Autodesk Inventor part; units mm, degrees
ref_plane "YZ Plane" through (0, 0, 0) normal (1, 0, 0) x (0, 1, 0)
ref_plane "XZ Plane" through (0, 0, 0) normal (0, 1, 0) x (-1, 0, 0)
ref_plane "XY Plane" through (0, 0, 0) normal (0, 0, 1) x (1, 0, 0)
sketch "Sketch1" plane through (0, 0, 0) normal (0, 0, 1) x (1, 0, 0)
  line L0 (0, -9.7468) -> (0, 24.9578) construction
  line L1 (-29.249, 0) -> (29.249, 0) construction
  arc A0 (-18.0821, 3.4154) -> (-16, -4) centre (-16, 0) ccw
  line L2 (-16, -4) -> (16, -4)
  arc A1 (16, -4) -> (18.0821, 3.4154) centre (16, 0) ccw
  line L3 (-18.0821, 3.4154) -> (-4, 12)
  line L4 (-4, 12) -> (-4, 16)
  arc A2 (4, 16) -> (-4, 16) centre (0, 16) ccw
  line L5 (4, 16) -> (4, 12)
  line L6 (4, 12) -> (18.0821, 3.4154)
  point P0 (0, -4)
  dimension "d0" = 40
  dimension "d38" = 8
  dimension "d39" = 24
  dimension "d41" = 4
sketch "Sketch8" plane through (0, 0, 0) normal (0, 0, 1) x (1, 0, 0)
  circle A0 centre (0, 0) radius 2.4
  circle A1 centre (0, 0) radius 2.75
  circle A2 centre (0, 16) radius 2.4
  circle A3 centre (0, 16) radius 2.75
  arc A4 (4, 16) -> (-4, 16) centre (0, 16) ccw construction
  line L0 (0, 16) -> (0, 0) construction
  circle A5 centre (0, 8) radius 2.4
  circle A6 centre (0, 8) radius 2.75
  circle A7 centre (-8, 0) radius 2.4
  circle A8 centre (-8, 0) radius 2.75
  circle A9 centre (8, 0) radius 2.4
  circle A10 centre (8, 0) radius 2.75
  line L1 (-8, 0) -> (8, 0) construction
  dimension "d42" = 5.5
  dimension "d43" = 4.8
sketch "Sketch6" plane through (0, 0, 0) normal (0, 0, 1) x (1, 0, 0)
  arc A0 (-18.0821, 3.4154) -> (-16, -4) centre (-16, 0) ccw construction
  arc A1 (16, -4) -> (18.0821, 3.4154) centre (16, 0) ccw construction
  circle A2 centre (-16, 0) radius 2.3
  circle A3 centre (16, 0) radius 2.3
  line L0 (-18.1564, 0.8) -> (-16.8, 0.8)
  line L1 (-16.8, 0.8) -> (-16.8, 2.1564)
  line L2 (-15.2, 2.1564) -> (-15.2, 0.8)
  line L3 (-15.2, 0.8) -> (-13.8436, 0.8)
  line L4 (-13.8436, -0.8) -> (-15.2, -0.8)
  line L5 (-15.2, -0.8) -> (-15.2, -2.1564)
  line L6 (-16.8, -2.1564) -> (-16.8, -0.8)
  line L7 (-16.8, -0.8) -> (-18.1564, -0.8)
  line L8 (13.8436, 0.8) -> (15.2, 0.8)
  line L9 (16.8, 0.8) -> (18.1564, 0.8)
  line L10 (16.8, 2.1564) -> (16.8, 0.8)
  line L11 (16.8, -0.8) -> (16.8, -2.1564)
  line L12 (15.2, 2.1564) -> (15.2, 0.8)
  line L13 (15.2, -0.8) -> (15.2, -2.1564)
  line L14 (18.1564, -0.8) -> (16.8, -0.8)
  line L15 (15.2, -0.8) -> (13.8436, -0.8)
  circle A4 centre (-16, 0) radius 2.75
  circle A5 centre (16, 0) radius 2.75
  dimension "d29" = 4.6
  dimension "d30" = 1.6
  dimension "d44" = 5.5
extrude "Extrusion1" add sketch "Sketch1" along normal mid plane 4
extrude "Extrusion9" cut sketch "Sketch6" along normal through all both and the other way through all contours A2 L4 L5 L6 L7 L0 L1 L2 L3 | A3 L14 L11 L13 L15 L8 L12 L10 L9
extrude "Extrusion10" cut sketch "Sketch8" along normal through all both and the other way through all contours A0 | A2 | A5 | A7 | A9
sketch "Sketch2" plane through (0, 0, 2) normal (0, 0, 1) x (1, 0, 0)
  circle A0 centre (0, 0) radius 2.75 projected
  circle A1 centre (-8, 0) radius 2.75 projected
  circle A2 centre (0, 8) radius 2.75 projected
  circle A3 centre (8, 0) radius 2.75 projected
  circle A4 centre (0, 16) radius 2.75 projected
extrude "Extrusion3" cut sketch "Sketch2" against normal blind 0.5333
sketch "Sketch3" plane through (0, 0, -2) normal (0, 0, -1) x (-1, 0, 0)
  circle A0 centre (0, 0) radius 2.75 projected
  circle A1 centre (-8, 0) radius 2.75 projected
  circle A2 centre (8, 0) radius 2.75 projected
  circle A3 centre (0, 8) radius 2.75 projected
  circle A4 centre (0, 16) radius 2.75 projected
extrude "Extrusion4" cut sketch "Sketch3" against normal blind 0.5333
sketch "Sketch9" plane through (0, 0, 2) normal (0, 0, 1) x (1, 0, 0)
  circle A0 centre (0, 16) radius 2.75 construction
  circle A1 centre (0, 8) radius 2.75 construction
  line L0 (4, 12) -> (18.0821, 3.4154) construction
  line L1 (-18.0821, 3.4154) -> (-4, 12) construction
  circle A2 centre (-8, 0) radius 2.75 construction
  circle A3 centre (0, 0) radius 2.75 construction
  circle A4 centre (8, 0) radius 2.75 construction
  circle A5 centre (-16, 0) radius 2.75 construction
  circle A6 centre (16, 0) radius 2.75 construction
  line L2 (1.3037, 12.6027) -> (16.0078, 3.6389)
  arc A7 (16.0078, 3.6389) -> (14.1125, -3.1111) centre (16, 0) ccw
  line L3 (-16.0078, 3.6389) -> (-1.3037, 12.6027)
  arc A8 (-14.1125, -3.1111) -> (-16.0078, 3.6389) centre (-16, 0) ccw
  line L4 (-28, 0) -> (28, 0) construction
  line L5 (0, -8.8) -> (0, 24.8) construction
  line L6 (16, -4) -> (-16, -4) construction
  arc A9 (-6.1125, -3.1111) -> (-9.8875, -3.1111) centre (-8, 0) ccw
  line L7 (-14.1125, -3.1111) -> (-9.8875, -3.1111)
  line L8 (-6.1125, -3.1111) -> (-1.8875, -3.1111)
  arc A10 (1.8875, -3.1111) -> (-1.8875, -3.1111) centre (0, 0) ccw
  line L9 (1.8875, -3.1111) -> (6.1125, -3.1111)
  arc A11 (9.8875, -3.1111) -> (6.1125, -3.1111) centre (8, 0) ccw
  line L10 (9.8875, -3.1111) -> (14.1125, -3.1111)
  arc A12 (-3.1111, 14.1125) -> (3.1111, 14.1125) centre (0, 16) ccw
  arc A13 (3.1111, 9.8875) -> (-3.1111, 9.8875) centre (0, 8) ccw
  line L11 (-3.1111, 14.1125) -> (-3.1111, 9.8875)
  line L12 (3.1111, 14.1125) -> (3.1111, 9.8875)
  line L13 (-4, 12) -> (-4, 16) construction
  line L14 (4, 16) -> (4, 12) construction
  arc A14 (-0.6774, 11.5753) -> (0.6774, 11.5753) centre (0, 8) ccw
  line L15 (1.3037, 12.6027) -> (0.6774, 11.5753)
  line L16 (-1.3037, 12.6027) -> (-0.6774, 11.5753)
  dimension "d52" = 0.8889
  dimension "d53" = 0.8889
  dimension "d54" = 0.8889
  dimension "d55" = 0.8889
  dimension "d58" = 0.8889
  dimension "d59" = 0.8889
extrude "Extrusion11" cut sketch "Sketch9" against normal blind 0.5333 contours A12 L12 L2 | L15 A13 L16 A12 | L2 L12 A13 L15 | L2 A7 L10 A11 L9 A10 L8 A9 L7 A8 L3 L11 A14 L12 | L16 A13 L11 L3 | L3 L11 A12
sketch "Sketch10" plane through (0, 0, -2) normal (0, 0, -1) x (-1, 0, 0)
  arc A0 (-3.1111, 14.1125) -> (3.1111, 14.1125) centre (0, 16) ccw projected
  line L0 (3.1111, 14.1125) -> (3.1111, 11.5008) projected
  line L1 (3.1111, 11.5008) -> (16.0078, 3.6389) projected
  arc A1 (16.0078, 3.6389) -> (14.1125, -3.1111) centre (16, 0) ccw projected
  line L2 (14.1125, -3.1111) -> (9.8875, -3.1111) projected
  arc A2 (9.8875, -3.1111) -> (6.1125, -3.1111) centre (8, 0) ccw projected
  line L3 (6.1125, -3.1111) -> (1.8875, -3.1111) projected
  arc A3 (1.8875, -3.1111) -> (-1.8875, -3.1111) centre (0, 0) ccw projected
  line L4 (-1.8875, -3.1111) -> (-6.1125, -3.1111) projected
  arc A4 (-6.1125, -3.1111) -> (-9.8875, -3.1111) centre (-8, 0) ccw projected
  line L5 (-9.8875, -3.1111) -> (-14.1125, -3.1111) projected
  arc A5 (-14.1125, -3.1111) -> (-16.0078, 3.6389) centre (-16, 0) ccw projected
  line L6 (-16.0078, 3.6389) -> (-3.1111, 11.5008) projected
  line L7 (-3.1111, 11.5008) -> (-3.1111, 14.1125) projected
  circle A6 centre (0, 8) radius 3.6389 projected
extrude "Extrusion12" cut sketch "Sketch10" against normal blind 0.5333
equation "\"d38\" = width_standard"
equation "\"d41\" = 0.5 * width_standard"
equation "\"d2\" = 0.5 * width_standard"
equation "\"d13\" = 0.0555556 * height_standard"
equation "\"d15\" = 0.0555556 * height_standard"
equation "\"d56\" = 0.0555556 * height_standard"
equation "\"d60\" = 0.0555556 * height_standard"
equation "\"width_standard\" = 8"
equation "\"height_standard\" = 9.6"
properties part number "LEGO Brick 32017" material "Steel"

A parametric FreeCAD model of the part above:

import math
import FreeCAD as App
import Part
import Sketcher
from FreeCAD import Vector

doc = App.newDocument("Part")
body = doc.addObject("PartDesign::Body", "Body")

# Sketch on XY plane
sketch1 = doc.addObject("Sketcher::SketchObject", "Sketch")
body.addObject(sketch1)
sketch1.AttachmentSupport = (doc.XY_Plane, [""])
sketch1.MapMode = "FlatFace"
sketch1.addGeometry(Part.LineSegment(Vector(-4, 12, 0), Vector(-18.0821, 3.4154, 0)), False)
sketch1.addGeometry(Part.ArcOfCircle(Part.Circle(Vector(-16, 0, 0), Vector(0, 0, 1), 4.000012), math.radians(121.367368), math.radians(270)), False)
sketch1.addGeometry(Part.LineSegment(Vector(-16, -4, 0), Vector(16, -4, 0)), False)
sketch1.addGeometry(Part.ArcOfCircle(Part.Circle(Vector(16, 0, 0), Vector(0, 0, 1), 4), math.radians(-90), math.radians(58.632632)), False)
sketch1.addGeometry(Part.LineSegment(Vector(18.0821, 3.4154, 0), Vector(4, 12, 0)), False)
sketch1.addGeometry(Part.LineSegment(Vector(4, 12, 0), Vector(4, 16, 0)), False)
sketch1.addGeometry(Part.ArcOfCircle(Part.Circle(Vector(0, 16, 0), Vector(0, 0, 1), 4), math.radians(0), math.radians(180)), False)
sketch1.addGeometry(Part.LineSegment(Vector(-4, 16, 0), Vector(-4, 12, 0)), False)
sketch1.addConstraint(Sketcher.Constraint("Tangent", 0, 2, 1, 1))
sketch1.addConstraint(Sketcher.Constraint("Tangent", 1, 2, 2, 1))
sketch1.addConstraint(Sketcher.Constraint("Tangent", 2, 2, 3, 1))
sketch1.addConstraint(Sketcher.Constraint("Tangent", 3, 2, 4, 1))
sketch1.addConstraint(Sketcher.Constraint("Coincident", 4, 2, 5, 1))
sketch1.addConstraint(Sketcher.Constraint("Tangent", 5, 2, 6, 1))
sketch1.addConstraint(Sketcher.Constraint("Tangent", 6, 2, 7, 1))
sketch1.addConstraint(Sketcher.Constraint("Coincident", 7, 2, 0, 1))
sketch1.addConstraint(Sketcher.Constraint("Horizontal", 2))
sketch1.addConstraint(Sketcher.Constraint("Vertical", 5))
sketch1.addConstraint(Sketcher.Constraint("Vertical", 7))
sketch1.addConstraint(Sketcher.Constraint("Equal", 1, 3))
sketch1.addConstraint(Sketcher.Constraint("Equal", 3, 6))
sketch1.addConstraint(Sketcher.Constraint("Symmetric", 1, 3, 3, 3, -1, 1))
sketch1.addConstraint(Sketcher.Constraint("Symmetric", 4, 2, 7, 2, -2))
sketch1.addConstraint(Sketcher.Constraint("Radius", 1, 4.0))
sketch1.addConstraint(Sketcher.Constraint("DistanceY", 5, 1, 5, 2, 4.0))
sketch1.addConstraint(Sketcher.Constraint("DistanceX", 2, 1, 2, 2, 32.0))
sketch1.addConstraint(Sketcher.Constraint("DistanceY", -1, 1, 6, 3, 16.0))
pad1 = doc.addObject("PartDesign::Pad", "Pad")
body.addObject(pad1)
pad1.Profile = sketch1
pad1.Length = 4
pad1.Midplane = True

# Sketch on XY plane
sketch2 = doc.addObject("Sketcher::SketchObject", "Sketch001")
body.addObject(sketch2)
sketch2.AttachmentSupport = (doc.XY_Plane, [""])
sketch2.MapMode = "FlatFace"
sketch2.addGeometry(Part.ArcOfCircle(Part.Circle(Vector(-16, 0, 0), Vector(0, 0, 1), 2.3), math.radians(-20.354284), math.radians(20.354284)), False)
sketch2.addGeometry(Part.LineSegment(Vector(-13.8436, 0.8, 0), Vector(-15.2, 0.8, 0)), False)
sketch2.addGeometry(Part.LineSegment(Vector(-15.2, 0.8, 0), Vector(-15.2, 2.1564, 0)), False)
sketch2.addGeometry(Part.ArcOfCircle(Part.Circle(Vector(-16, 0, 0), Vector(0, 0, 1), 2.3), math.radians(69.645716), math.radians(110.354284)), False)
sketch2.addGeometry(Part.LineSegment(Vector(-16.8, 2.1564, 0), Vector(-16.8, 0.8, 0)), False)
sketch2.addGeometry(Part.LineSegment(Vector(-16.8, 0.8, 0), Vector(-18.1564, 0.8, 0)), False)
sketch2.addGeometry(Part.ArcOfCircle(Part.Circle(Vector(-16, 0, 0), Vector(0, 0, 1), 2.3), math.radians(159.645716), math.radians(200.354284)), False)
sketch2.addGeometry(Part.LineSegment(Vector(-18.1564, -0.8, 0), Vector(-16.8, -0.8, 0)), False)
sketch2.addGeometry(Part.LineSegment(Vector(-16.8, -0.8, 0), Vector(-16.8, -2.1564, 0)), False)
sketch2.addGeometry(Part.ArcOfCircle(Part.Circle(Vector(-16, 0, 0), Vector(0, 0, 1), 2.3), math.radians(-110.354284), math.radians(-69.645716)), False)
sketch2.addGeometry(Part.LineSegment(Vector(-15.2, -2.1564, 0), Vector(-15.2, -0.8, 0)), False)
sketch2.addGeometry(Part.LineSegment(Vector(-15.2, -0.8, 0), Vector(-13.8436, -0.8, 0)), False)
sketch2.addGeometry(Part.ArcOfCircle(Part.Circle(Vector(16, 0, 0), Vector(0, 0, 1), 2.3), math.radians(-20.354284), math.radians(20.354284)), False)
sketch2.addGeometry(Part.LineSegment(Vector(18.1564, 0.8, 0), Vector(16.8, 0.8, 0)), False)
sketch2.addGeometry(Part.LineSegment(Vector(16.8, 0.8, 0), Vector(16.8, 2.1564, 0)), False)
sketch2.addGeometry(Part.ArcOfCircle(Part.Circle(Vector(16, 0, 0), Vector(0, 0, 1), 2.3), math.radians(69.645716), math.radians(110.354284)), False)
sketch2.addGeometry(Part.LineSegment(Vector(15.2, 2.1564, 0), Vector(15.2, 0.8, 0)), False)
sketch2.addGeometry(Part.LineSegment(Vector(15.2, 0.8, 0), Vector(13.8436, 0.8, 0)), False)
sketch2.addGeometry(Part.ArcOfCircle(Part.Circle(Vector(16, 0, 0), Vector(0, 0, 1), 2.3), math.radians(159.645716), math.radians(200.354284)), False)
sketch2.addGeometry(Part.LineSegment(Vector(13.8436, -0.8, 0), Vector(15.2, -0.8, 0)), False)
sketch2.addGeometry(Part.LineSegment(Vector(15.2, -0.8, 0), Vector(15.2, -2.1564, 0)), False)
sketch2.addGeometry(Part.ArcOfCircle(Part.Circle(Vector(16, 0, 0), Vector(0, 0, 1), 2.3), math.radians(-110.354284), math.radians(-69.645716)), False)
sketch2.addGeometry(Part.LineSegment(Vector(16.8, -2.1564, 0), Vector(16.8, -0.8, 0)), False)
sketch2.addGeometry(Part.LineSegment(Vector(16.8, -0.8, 0), Vector(18.1564, -0.8, 0)), False)
sketch2.addConstraint(Sketcher.Constraint("Coincident", 0, 2, 1, 1))
sketch2.addConstraint(Sketcher.Constraint("Coincident", 1, 2, 2, 1))
sketch2.addConstraint(Sketcher.Constraint("Coincident", 2, 2, 3, 1))
sketch2.addConstraint(Sketcher.Constraint("Coincident", 3, 2, 4, 1))
sketch2.addConstraint(Sketcher.Constraint("Coincident", 4, 2, 5, 1))
sketch2.addConstraint(Sketcher.Constraint("Coincident", 5, 2, 6, 1))
sketch2.addConstraint(Sketcher.Constraint("Coincident", 6, 2, 7, 1))
sketch2.addConstraint(Sketcher.Constraint("Coincident", 7, 2, 8, 1))
sketch2.addConstraint(Sketcher.Constraint("Coincident", 8, 2, 9, 1))
sketch2.addConstraint(Sketcher.Constraint("Coincident", 9, 2, 10, 1))
sketch2.addConstraint(Sketcher.Constraint("Coincident", 10, 2, 11, 1))
sketch2.addConstraint(Sketcher.Constraint("Coincident", 11, 2, 0, 1))
sketch2.addConstraint(Sketcher.Constraint("Coincident", 12, 2, 13, 1))
sketch2.addConstraint(Sketcher.Constraint("Coincident", 13, 2, 14, 1))
sketch2.addConstraint(Sketcher.Constraint("Coincident", 14, 2, 15, 1))
sketch2.addConstraint(Sketcher.Constraint("Coincident", 15, 2, 16, 1))
sketch2.addConstraint(Sketcher.Constraint("Coincident", 16, 2, 17, 1))
sketch2.addConstraint(Sketcher.Constraint("Coincident", 17, 2, 18, 1))
sketch2.addConstraint(Sketcher.Constraint("Coincident", 18, 2, 19, 1))
sketch2.addConstraint(Sketcher.Constraint("Coincident", 19, 2, 20, 1))
sketch2.addConstraint(Sketcher.Constraint("Coincident", 20, 2, 21, 1))
sketch2.addConstraint(Sketcher.Constraint("Coincident", 21, 2, 22, 1))
sketch2.addConstraint(Sketcher.Constraint("Coincident", 22, 2, 23, 1))
sketch2.addConstraint(Sketcher.Constraint("Coincident", 23, 2, 12, 1))
sketch2.addConstraint(Sketcher.Constraint("Horizontal", 1))
sketch2.addConstraint(Sketcher.Constraint("Vertical", 2))
sketch2.addConstraint(Sketcher.Constraint("Vertical", 4))
sketch2.addConstraint(Sketcher.Constraint("Horizontal", 5))
sketch2.addConstraint(Sketcher.Constraint("Horizontal", 7))
sketch2.addConstraint(Sketcher.Constraint("Vertical", 8))
sketch2.addConstraint(Sketcher.Constraint("Vertical", 10))
sketch2.addConstraint(Sketcher.Constraint("Horizontal", 11))
sketch2.addConstraint(Sketcher.Constraint("Horizontal", 13))
sketch2.addConstraint(Sketcher.Constraint("Vertical", 14))
sketch2.addConstraint(Sketcher.Constraint("Vertical", 16))
sketch2.addConstraint(Sketcher.Constraint("Horizontal", 17))
sketch2.addConstraint(Sketcher.Constraint("Horizontal", 19))
sketch2.addConstraint(Sketcher.Constraint("Vertical", 20))
sketch2.addConstraint(Sketcher.Constraint("Vertical", 22))
sketch2.addConstraint(Sketcher.Constraint("Horizontal", 23))
sketch2.addConstraint(Sketcher.Constraint("Coincident", 3, 3, 0, 3))
sketch2.addConstraint(Sketcher.Constraint("Coincident", 6, 3, 0, 3))
sketch2.addConstraint(Sketcher.Constraint("Coincident", 9, 3, 0, 3))
sketch2.addConstraint(Sketcher.Constraint("Coincident", 15, 3, 12, 3))
sketch2.addConstraint(Sketcher.Constraint("Coincident", 18, 3, 12, 3))
sketch2.addConstraint(Sketcher.Constraint("Coincident", 21, 3, 12, 3))
sketch2.addConstraint(Sketcher.Constraint("Equal", 0, 3))
sketch2.addConstraint(Sketcher.Constraint("Equal", 3, 6))
sketch2.addConstraint(Sketcher.Constraint("Equal", 6, 9))
sketch2.addConstraint(Sketcher.Constraint("Equal", 9, 12))
sketch2.addConstraint(Sketcher.Constraint("Equal", 12, 15))
sketch2.addConstraint(Sketcher.Constraint("Equal", 15, 18))
sketch2.addConstraint(Sketcher.Constraint("Equal", 18, 21))
sketch2.addConstraint(Sketcher.Constraint("Symmetric", 0, 3, 12, 3, -1, 1))
sketch2.addConstraint(Sketcher.Constraint("Symmetric", 7, 2, 13, 2, -1, 1))
sketch2.addConstraint(Sketcher.Constraint("Symmetric", 10, 2, 16, 2, -1, 1))
sketch2.addConstraint(Sketcher.Constraint("Symmetric", 1, 2, 19, 2, -1, 1))
sketch2.addConstraint(Sketcher.Constraint("Symmetric", 4, 2, 22, 2, -1, 1))
sketch2.addConstraint(Sketcher.Constraint("Symmetric", 5, 2, 12, 2, -2))
sketch2.addConstraint(Sketcher.Constraint("Symmetric", 1, 2, 16, 2, -2))
sketch2.addConstraint(Sketcher.Constraint("Horizontal", 2, 2, 3, 2))
sketch2.addConstraint(Sketcher.Constraint("Horizontal", 1, 2, 4, 2))
sketch2.addConstraint(Sketcher.Constraint("Horizontal", 8, 2, 9, 2))
sketch2.addConstraint(Sketcher.Constraint("Equal", 23, 2))
sketch2.addConstraint(Sketcher.Constraint("Radius", 0, 2.3))
sketch2.addConstraint(Sketcher.Constraint("DistanceX", 3, 2, 2, 2, 1.6))
sketch2.addConstraint(Sketcher.Constraint("DistanceX", 0, 3, -1, 1, 16.0))
pocket1 = doc.addObject("PartDesign::Pocket", "Pocket")
body.addObject(pocket1)
pocket1.Profile = sketch2
pocket1.Type = "ThroughAll"
pocket1.Midplane = True

# Sketch on XY plane
sketch3 = doc.addObject("Sketcher::SketchObject", "Sketch002")
body.addObject(sketch3)
sketch3.AttachmentSupport = (doc.XY_Plane, [""])
sketch3.MapMode = "FlatFace"
sketch3.addGeometry(Part.Circle(Vector(0, 0, 0), Vector(0, 0, 1), 2.4), False)
sketch3.addGeometry(Part.Circle(Vector(0, 16, 0), Vector(0, 0, 1), 2.4), False)
sketch3.addGeometry(Part.Circle(Vector(0, 8, 0), Vector(0, 0, 1), 2.4), False)
sketch3.addGeometry(Part.Circle(Vector(-8, 0, 0), Vector(0, 0, 1), 2.4), False)
sketch3.addGeometry(Part.Circle(Vector(8, 0, 0), Vector(0, 0, 1), 2.4), False)
sketch3.addConstraint(Sketcher.Constraint("Coincident", 0, 3, -1, 1))
sketch3.addConstraint(Sketcher.Constraint("Equal", 0, 1))
sketch3.addConstraint(Sketcher.Constraint("Equal", 1, 2))
sketch3.addConstraint(Sketcher.Constraint("Equal", 2, 3))
sketch3.addConstraint(Sketcher.Constraint("Equal", 3, 4))
sketch3.addConstraint(Sketcher.Constraint("Symmetric", 3, 3, 4, 3, -1, 1))
sketch3.addConstraint(Sketcher.Constraint("PointOnObject", 1, 3, -2))
sketch3.addConstraint(Sketcher.Constraint("PointOnObject", 2, 3, -2))
sketch3.addConstraint(Sketcher.Constraint("PointOnObject", 3, 3, -1))
sketch3.addConstraint(Sketcher.Constraint("Diameter", 0, 4.8))
sketch3.addConstraint(Sketcher.Constraint("DistanceY", -1, 1, 1, 3, 16.0))
sketch3.addConstraint(Sketcher.Constraint("DistanceY", -1, 1, 2, 3, 8.0))
sketch3.addConstraint(Sketcher.Constraint("DistanceX", 3, 3, -1, 1, 8.0))
pocket2 = doc.addObject("PartDesign::Pocket", "Pocket001")
body.addObject(pocket2)
pocket2.Profile = sketch3
pocket2.Type = "ThroughAll"
pocket2.Midplane = True

# Sketch on XY plane
sketch4 = doc.addObject("Sketcher::SketchObject", "Sketch003")
body.addObject(sketch4)
sketch4.AttachmentSupport = (doc.XY_Plane, [""])
sketch4.MapMode = "FlatFace"
sketch4.AttachmentOffset = App.Placement(Vector(0, 0, 2), App.Rotation())
sketch4.addGeometry(Part.Circle(Vector(0, 0, 0), Vector(0, 0, 1), 2.75), False)
sketch4.addGeometry(Part.Circle(Vector(-8, 0, 0), Vector(0, 0, 1), 2.75), False)
sketch4.addGeometry(Part.Circle(Vector(0, 8, 0), Vector(0, 0, 1), 2.75), False)
sketch4.addGeometry(Part.Circle(Vector(8, 0, 0), Vector(0, 0, 1), 2.75), False)
sketch4.addGeometry(Part.Circle(Vector(0, 16, 0), Vector(0, 0, 1), 2.75), False)
sketch4.addConstraint(Sketcher.Constraint("Coincident", 0, 3, -1, 1))
sketch4.addConstraint(Sketcher.Constraint("Equal", 0, 1))
sketch4.addConstraint(Sketcher.Constraint("Equal", 1, 2))
sketch4.addConstraint(Sketcher.Constraint("Equal", 2, 3))
sketch4.addConstraint(Sketcher.Constraint("Equal", 3, 4))
sketch4.addConstraint(Sketcher.Constraint("Symmetric", 1, 3, 3, 3, -1, 1))
sketch4.addConstraint(Sketcher.Constraint("PointOnObject", 1, 3, -1))
sketch4.addConstraint(Sketcher.Constraint("PointOnObject", 2, 3, -2))
sketch4.addConstraint(Sketcher.Constraint("PointOnObject", 4, 3, -2))
sketch4.addConstraint(Sketcher.Constraint("Diameter", 0, 5.5))
sketch4.addConstraint(Sketcher.Constraint("DistanceX", 1, 3, -1, 1, 8.0))
sketch4.addConstraint(Sketcher.Constraint("DistanceY", -1, 1, 2, 3, 8.0))
sketch4.addConstraint(Sketcher.Constraint("DistanceY", -1, 1, 4, 3, 16.0))
pocket3 = doc.addObject("PartDesign::Pocket", "Pocket002")
body.addObject(pocket3)
pocket3.Profile = sketch4
pocket3.Length = 0.5333

# Sketch on XY plane
sketch5 = doc.addObject("Sketcher::SketchObject", "Sketch004")
body.addObject(sketch5)
sketch5.AttachmentSupport = (doc.XY_Plane, [""])
sketch5.MapMode = "FlatFace"
sketch5.AttachmentOffset = App.Placement(Vector(0, 0, -2), App.Rotation())
sketch5.addGeometry(Part.Circle(Vector(0, 0, 0), Vector(0, 0, 1), 2.75), False)
sketch5.addGeometry(Part.Circle(Vector(8, 0, 0), Vector(0, 0, 1), 2.75), False)
sketch5.addGeometry(Part.Circle(Vector(-8, 0, 0), Vector(0, 0, 1), 2.75), False)
sketch5.addGeometry(Part.Circle(Vector(0, 8, 0), Vector(0, 0, 1), 2.75), False)
sketch5.addGeometry(Part.Circle(Vector(0, 16, 0), Vector(0, 0, 1), 2.75), False)
sketch5.addConstraint(Sketcher.Constraint("Coincident", 0, 3, -1, 1))
sketch5.addConstraint(Sketcher.Constraint("Equal", 0, 1))
sketch5.addConstraint(Sketcher.Constraint("Equal", 1, 2))
sketch5.addConstraint(Sketcher.Constraint("Equal", 2, 3))
sketch5.addConstraint(Sketcher.Constraint("Equal", 3, 4))
sketch5.addConstraint(Sketcher.Constraint("Symmetric", 1, 3, 2, 3, -1, 1))
sketch5.addConstraint(Sketcher.Constraint("PointOnObject", 1, 3, -1))
sketch5.addConstraint(Sketcher.Constraint("PointOnObject", 3, 3, -2))
sketch5.addConstraint(Sketcher.Constraint("PointOnObject", 4, 3, -2))
sketch5.addConstraint(Sketcher.Constraint("Diameter", 0, 5.5))
sketch5.addConstraint(Sketcher.Constraint("DistanceX", -1, 1, 1, 3, 8.0))
sketch5.addConstraint(Sketcher.Constraint("DistanceY", -1, 1, 3, 3, 8.0))
sketch5.addConstraint(Sketcher.Constraint("DistanceY", -1, 1, 4, 3, 16.0))
pocket4 = doc.addObject("PartDesign::Pocket", "Pocket003")
body.addObject(pocket4)
pocket4.Profile = sketch5
pocket4.Length = 0.5333
pocket4.Reversed = True

# Sketch on XY plane
sketch6 = doc.addObject("Sketcher::SketchObject", "Sketch005")
body.addObject(sketch6)
sketch6.AttachmentSupport = (doc.XY_Plane, [""])
sketch6.MapMode = "FlatFace"
sketch6.AttachmentOffset = App.Placement(Vector(0, 0, 2), App.Rotation())
sketch6.addGeometry(Part.ArcOfCircle(Part.Circle(Vector(0, 16, 0), Vector(0, 0, 1), 3.638901), math.radians(-148.75487), math.radians(-31.24513)), False)
sketch6.addGeometry(Part.LineSegment(Vector(-3.1111, 14.1125, 0), Vector(-3.1111, 11.500887, 0)), False)
sketch6.addGeometry(Part.LineSegment(Vector(-3.1111, 11.500887, 0), Vector(-16.0078, 3.6389, 0)), False)
sketch6.addGeometry(Part.ArcOfCircle(Part.Circle(Vector(-16, 0, 0), Vector(0, 0, 1), 3.638901), math.radians(-58.75487), math.radians(90.122814)), False)
sketch6.addGeometry(Part.LineSegment(Vector(-14.1125, -3.1111, 0), Vector(-9.8875, -3.1111, 0)), False)
sketch6.addGeometry(Part.ArcOfCircle(Part.Circle(Vector(-8, 0, 0), Vector(0, 0, 1), 3.638901), math.radians(-58.75487), math.radians(238.75487)), False)
sketch6.addGeometry(Part.LineSegment(Vector(-6.1125, -3.1111, 0), Vector(-1.8875, -3.1111, 0)), False)
sketch6.addGeometry(Part.ArcOfCircle(Part.Circle(Vector(0, 0, 0), Vector(0, 0, 1), 3.638901), math.radians(-58.75487), math.radians(238.75487)), False)
sketch6.addGeometry(Part.LineSegment(Vector(1.8875, -3.1111, 0), Vector(6.1125, -3.1111, 0)), False)
sketch6.addGeometry(Part.ArcOfCircle(Part.Circle(Vector(8, 0, 0), Vector(0, 0, 1), 3.638901), math.radians(-58.75487), math.radians(238.75487)), False)
sketch6.addGeometry(Part.LineSegment(Vector(9.8875, -3.1111, 0), Vector(14.1125, -3.1111, 0)), False)
sketch6.addGeometry(Part.ArcOfCircle(Part.Circle(Vector(16, 0, 0), Vector(0, 0, 1), 3.638908), math.radians(89.877186), math.radians(238.75487)), False)
sketch6.addGeometry(Part.LineSegment(Vector(16.0078, 3.6389, 0), Vector(3.1111, 11.500887, 0)), False)
sketch6.addGeometry(Part.LineSegment(Vector(3.1111, 11.500887, 0), Vector(3.1111, 14.1125, 0)), False)
sketch6.addGeometry(Part.Circle(Vector(0, 8, 0), Vector(0, 0, 1), 3.638907), False)
sketch6.addConstraint(Sketcher.Constraint("Coincident", 0, 1, 1, 1))
sketch6.addConstraint(Sketcher.Constraint("Coincident", 1, 2, 2, 1))
sketch6.addConstraint(Sketcher.Constraint("Coincident", 2, 2, 3, 2))
sketch6.addConstraint(Sketcher.Constraint("Coincident", 3, 1, 4, 1))
sketch6.addConstraint(Sketcher.Constraint("Coincident", 4, 2, 5, 2))
sketch6.addConstraint(Sketcher.Constraint("Coincident", 5, 1, 6, 1))
sketch6.addConstraint(Sketcher.Constraint("Coincident", 6, 2, 7, 2))
sketch6.addConstraint(Sketcher.Constraint("Coincident", 7, 1, 8, 1))
sketch6.addConstraint(Sketcher.Constraint("Coincident", 8, 2, 9, 2))
sketch6.addConstraint(Sketcher.Constraint("Coincident", 9, 1, 10, 1))
sketch6.addConstraint(Sketcher.Constraint("Coincident", 10, 2, 11, 2))
sketch6.addConstraint(Sketcher.Constraint("Coincident", 11, 1, 12, 1))
sketch6.addConstraint(Sketcher.Constraint("Coincident", 12, 2, 13, 1))
sketch6.addConstraint(Sketcher.Constraint("Coincident", 13, 2, 0, 2))
sketch6.addConstraint(Sketcher.Constraint("Vertical", 1))
sketch6.addConstraint(Sketcher.Constraint("Horizontal", 4))
sketch6.addConstraint(Sketcher.Constraint("Horizontal", 6))
sketch6.addConstraint(Sketcher.Constraint("Horizontal", 8))
sketch6.addConstraint(Sketcher.Constraint("Horizontal", 10))
sketch6.addConstraint(Sketcher.Constraint("Vertical", 13))
sketch6.addConstraint(Sketcher.Constraint("Coincident", 7, 3, -1, 1))
sketch6.addConstraint(Sketcher.Constraint("Equal", 0, 3))
sketch6.addConstraint(Sketcher.Constraint("Equal", 3, 5))
sketch6.addConstraint(Sketcher.Constraint("Equal", 5, 7))
sketch6.addConstraint(Sketcher.Constraint("Equal", 7, 9))
sketch6.addConstraint(Sketcher.Constraint("Equal", 9, 11))
sketch6.addConstraint(Sketcher.Constraint("Equal", 11, 14))
sketch6.addConstraint(Sketcher.Constraint("Symmetric", 5, 3, 9, 3, -1, 1))
sketch6.addConstraint(Sketcher.Constraint("Symmetric", 3, 3, 11, 3, -1, 1))
sketch6.addConstraint(Sketcher.Constraint("Symmetric", 5, 1, 8, 2, -2))
sketch6.addConstraint(Sketcher.Constraint("Symmetric", 3, 1, 10, 2, -2))
sketch6.addConstraint(Sketcher.Constraint("Symmetric", 1, 2, 12, 2, -2))
sketch6.addConstraint(Sketcher.Constraint("PointOnObject", 0, 3, -2))
sketch6.addConstraint(Sketcher.Constraint("PointOnObject", 14, 3, -2))
sketch6.addConstraint(Sketcher.Constraint("Horizontal", 4, 2, 5, 1))
sketch6.addConstraint(Sketcher.Constraint("Equal", 4, 6))
sketch6.addConstraint(Sketcher.Constraint("Equal", 2, 12))
sketch6.addConstraint(Sketcher.Constraint("DistanceY", -1, 1, 0, 3, 16.0))
sketch6.addConstraint(Sketcher.Constraint("DistanceX", 3, 3, -1, 1, 16.0))
sketch6.addConstraint(Sketcher.Constraint("DistanceY", -1, 1, 14, 3, 8.0))
sketch6.addConstraint(Sketcher.Constraint("Radius", 0, 3.639))
sketch6.addConstraint(Sketcher.Constraint("DistanceX", 4, 1, 4, 2, 4.225))
sketch6.addConstraint(Sketcher.Constraint("DistanceY", 1, 2, 1, 1, 2.6116))
sketch6.addConstraint(Sketcher.Constraint("DistanceX", 0, 1, -1, 1, 3.111))
sketch6.addConstraint(Sketcher.Constraint("Distance", 2, 15.1042))
pocket5 = doc.addObject("PartDesign::Pocket", "Pocket004")
body.addObject(pocket5)
pocket5.Profile = sketch6
pocket5.Length = 0.5333

# Sketch on XY plane
sketch7 = doc.addObject("Sketcher::SketchObject", "Sketch006")
body.addObject(sketch7)
sketch7.AttachmentSupport = (doc.XY_Plane, [""])
sketch7.MapMode = "FlatFace"
sketch7.AttachmentOffset = App.Placement(Vector(0, 0, -2), App.Rotation())
sketch7.addGeometry(Part.ArcOfCircle(Part.Circle(Vector(0, 16, 0), Vector(0, 0, 1), 3.638901), math.radians(-148.75487), math.radians(-31.24513)), False)
sketch7.addGeometry(Part.LineSegment(Vector(3.1111, 14.1125, 0), Vector(3.1111, 11.5008, 0)), False)
sketch7.addGeometry(Part.LineSegment(Vector(3.1111, 11.5008, 0), Vector(16.0078, 3.6389, 0)), False)
sketch7.addGeometry(Part.ArcOfCircle(Part.Circle(Vector(16, 0, 0), Vector(0, 0, 1), 3.638901), math.radians(89.877186), math.radians(238.75487)), False)
sketch7.addGeometry(Part.LineSegment(Vector(14.1125, -3.1111, 0), Vector(9.8875, -3.1111, 0)), False)
sketch7.addGeometry(Part.ArcOfCircle(Part.Circle(Vector(8, 0, 0), Vector(0, 0, 1), 3.638901), math.radians(-58.75487), math.radians(238.75487)), False)
sketch7.addGeometry(Part.LineSegment(Vector(6.1125, -3.1111, 0), Vector(1.8875, -3.1111, 0)), False)
sketch7.addGeometry(Part.ArcOfCircle(Part.Circle(Vector(0, 0, 0), Vector(0, 0, 1), 3.638901), math.radians(-58.75487), math.radians(238.75487)), False)
sketch7.addGeometry(Part.LineSegment(Vector(-1.8875, -3.1111, 0), Vector(-6.1125, -3.1111, 0)), False)
sketch7.addGeometry(Part.ArcOfCircle(Part.Circle(Vector(-8, 0, 0), Vector(0, 0, 1), 3.638901), math.radians(-58.75487), math.radians(238.75487)), False)
sketch7.addGeometry(Part.LineSegment(Vector(-9.8875, -3.1111, 0), Vector(-14.1125, -3.1111, 0)), False)
sketch7.addGeometry(Part.ArcOfCircle(Part.Circle(Vector(-16, 0, 0), Vector(0, 0, 1), 3.638908), math.radians(-58.75487), math.radians(90.122814)), False)
sketch7.addGeometry(Part.LineSegment(Vector(-16.0078, 3.6389, 0), Vector(-3.1111, 11.5008, 0)), False)
sketch7.addGeometry(Part.LineSegment(Vector(-3.1111, 11.5008, 0), Vector(-3.1111, 14.1125, 0)), False)
sketch7.addGeometry(Part.Circle(Vector(0, 8, 0), Vector(0, 0, 1), 3.6389), False)
sketch7.addConstraint(Sketcher.Constraint("Coincident", 0, 2, 1, 1))
sketch7.addConstraint(Sketcher.Constraint("Coincident", 1, 2, 2, 1))
sketch7.addConstraint(Sketcher.Constraint("Coincident", 2, 2, 3, 1))
sketch7.addConstraint(Sketcher.Constraint("Coincident", 3, 2, 4, 1))
sketch7.addConstraint(Sketcher.Constraint("Coincident", 4, 2, 5, 1))
sketch7.addConstraint(Sketcher.Constraint("Coincident", 5, 2, 6, 1))
sketch7.addConstraint(Sketcher.Constraint("Coincident", 6, 2, 7, 1))
sketch7.addConstraint(Sketcher.Constraint("Coincident", 7, 2, 8, 1))
sketch7.addConstraint(Sketcher.Constraint("Coincident", 8, 2, 9, 1))
sketch7.addConstraint(Sketcher.Constraint("Coincident", 9, 2, 10, 1))
sketch7.addConstraint(Sketcher.Constraint("Coincident", 10, 2, 11, 1))
sketch7.addConstraint(Sketcher.Constraint("Coincident", 11, 2, 12, 1))
sketch7.addConstraint(Sketcher.Constraint("Coincident", 12, 2, 13, 1))
sketch7.addConstraint(Sketcher.Constraint("Coincident", 13, 2, 0, 1))
sketch7.addConstraint(Sketcher.Constraint("Vertical", 1))
sketch7.addConstraint(Sketcher.Constraint("Horizontal", 4))
sketch7.addConstraint(Sketcher.Constraint("Horizontal", 6))
sketch7.addConstraint(Sketcher.Constraint("Horizontal", 8))
sketch7.addConstraint(Sketcher.Constraint("Horizontal", 10))
sketch7.addConstraint(Sketcher.Constraint("Vertical", 13))
sketch7.addConstraint(Sketcher.Constraint("Coincident", 7, 3, -1, 1))
sketch7.addConstraint(Sketcher.Constraint("Equal", 0, 3))
sketch7.addConstraint(Sketcher.Constraint("Equal", 3, 5))
sketch7.addConstraint(Sketcher.Constraint("Equal", 5, 7))
sketch7.addConstraint(Sketcher.Constraint("Equal", 7, 9))
sketch7.addConstraint(Sketcher.Constraint("Equal", 9, 11))
sketch7.addConstraint(Sketcher.Constraint("Equal", 11, 14))
sketch7.addConstraint(Sketcher.Constraint("Symmetric", 5, 3, 9, 3, -1, 1))
sketch7.addConstraint(Sketcher.Constraint("Symmetric", 3, 3, 11, 3, -1, 1))
sketch7.addConstraint(Sketcher.Constraint("Symmetric", 5, 2, 8, 2, -2))
sketch7.addConstraint(Sketcher.Constraint("Symmetric", 3, 2, 10, 2, -2))
sketch7.addConstraint(Sketcher.Constraint("Symmetric", 1, 2, 12, 2, -2))
sketch7.addConstraint(Sketcher.Constraint("PointOnObject", 0, 3, -2))
sketch7.addConstraint(Sketcher.Constraint("PointOnObject", 14, 3, -2))
sketch7.addConstraint(Sketcher.Constraint("Horizontal", 4, 2, 5, 2))
sketch7.addConstraint(Sketcher.Constraint("Equal", 4, 6))
sketch7.addConstraint(Sketcher.Constraint("Equal", 2, 12))
sketch7.addConstraint(Sketcher.Constraint("DistanceY", -1, 1, 0, 3, 16.0))
sketch7.addConstraint(Sketcher.Constraint("DistanceX", -1, 1, 3, 3, 16.0))
sketch7.addConstraint(Sketcher.Constraint("DistanceY", -1, 1, 14, 3, 8.0))
sketch7.addConstraint(Sketcher.Constraint("Radius", 0, 3.639))
sketch7.addConstraint(Sketcher.Constraint("DistanceX", 4, 2, 4, 1, 4.225))
sketch7.addConstraint(Sketcher.Constraint("Distance", 2, 15.104))
sketch7.addConstraint(Sketcher.Constraint("DistanceY", 1, 2, 1, 1, 2.6117))
sketch7.addConstraint(Sketcher.Constraint("DistanceX", -1, 1, 0, 2, 3.111))
pocket6 = doc.addObject("PartDesign::Pocket", "Pocket005")
body.addObject(pocket6)
pocket6.Profile = sketch7
pocket6.Length = 0.5333
pocket6.Reversed = True

doc.recompute()
